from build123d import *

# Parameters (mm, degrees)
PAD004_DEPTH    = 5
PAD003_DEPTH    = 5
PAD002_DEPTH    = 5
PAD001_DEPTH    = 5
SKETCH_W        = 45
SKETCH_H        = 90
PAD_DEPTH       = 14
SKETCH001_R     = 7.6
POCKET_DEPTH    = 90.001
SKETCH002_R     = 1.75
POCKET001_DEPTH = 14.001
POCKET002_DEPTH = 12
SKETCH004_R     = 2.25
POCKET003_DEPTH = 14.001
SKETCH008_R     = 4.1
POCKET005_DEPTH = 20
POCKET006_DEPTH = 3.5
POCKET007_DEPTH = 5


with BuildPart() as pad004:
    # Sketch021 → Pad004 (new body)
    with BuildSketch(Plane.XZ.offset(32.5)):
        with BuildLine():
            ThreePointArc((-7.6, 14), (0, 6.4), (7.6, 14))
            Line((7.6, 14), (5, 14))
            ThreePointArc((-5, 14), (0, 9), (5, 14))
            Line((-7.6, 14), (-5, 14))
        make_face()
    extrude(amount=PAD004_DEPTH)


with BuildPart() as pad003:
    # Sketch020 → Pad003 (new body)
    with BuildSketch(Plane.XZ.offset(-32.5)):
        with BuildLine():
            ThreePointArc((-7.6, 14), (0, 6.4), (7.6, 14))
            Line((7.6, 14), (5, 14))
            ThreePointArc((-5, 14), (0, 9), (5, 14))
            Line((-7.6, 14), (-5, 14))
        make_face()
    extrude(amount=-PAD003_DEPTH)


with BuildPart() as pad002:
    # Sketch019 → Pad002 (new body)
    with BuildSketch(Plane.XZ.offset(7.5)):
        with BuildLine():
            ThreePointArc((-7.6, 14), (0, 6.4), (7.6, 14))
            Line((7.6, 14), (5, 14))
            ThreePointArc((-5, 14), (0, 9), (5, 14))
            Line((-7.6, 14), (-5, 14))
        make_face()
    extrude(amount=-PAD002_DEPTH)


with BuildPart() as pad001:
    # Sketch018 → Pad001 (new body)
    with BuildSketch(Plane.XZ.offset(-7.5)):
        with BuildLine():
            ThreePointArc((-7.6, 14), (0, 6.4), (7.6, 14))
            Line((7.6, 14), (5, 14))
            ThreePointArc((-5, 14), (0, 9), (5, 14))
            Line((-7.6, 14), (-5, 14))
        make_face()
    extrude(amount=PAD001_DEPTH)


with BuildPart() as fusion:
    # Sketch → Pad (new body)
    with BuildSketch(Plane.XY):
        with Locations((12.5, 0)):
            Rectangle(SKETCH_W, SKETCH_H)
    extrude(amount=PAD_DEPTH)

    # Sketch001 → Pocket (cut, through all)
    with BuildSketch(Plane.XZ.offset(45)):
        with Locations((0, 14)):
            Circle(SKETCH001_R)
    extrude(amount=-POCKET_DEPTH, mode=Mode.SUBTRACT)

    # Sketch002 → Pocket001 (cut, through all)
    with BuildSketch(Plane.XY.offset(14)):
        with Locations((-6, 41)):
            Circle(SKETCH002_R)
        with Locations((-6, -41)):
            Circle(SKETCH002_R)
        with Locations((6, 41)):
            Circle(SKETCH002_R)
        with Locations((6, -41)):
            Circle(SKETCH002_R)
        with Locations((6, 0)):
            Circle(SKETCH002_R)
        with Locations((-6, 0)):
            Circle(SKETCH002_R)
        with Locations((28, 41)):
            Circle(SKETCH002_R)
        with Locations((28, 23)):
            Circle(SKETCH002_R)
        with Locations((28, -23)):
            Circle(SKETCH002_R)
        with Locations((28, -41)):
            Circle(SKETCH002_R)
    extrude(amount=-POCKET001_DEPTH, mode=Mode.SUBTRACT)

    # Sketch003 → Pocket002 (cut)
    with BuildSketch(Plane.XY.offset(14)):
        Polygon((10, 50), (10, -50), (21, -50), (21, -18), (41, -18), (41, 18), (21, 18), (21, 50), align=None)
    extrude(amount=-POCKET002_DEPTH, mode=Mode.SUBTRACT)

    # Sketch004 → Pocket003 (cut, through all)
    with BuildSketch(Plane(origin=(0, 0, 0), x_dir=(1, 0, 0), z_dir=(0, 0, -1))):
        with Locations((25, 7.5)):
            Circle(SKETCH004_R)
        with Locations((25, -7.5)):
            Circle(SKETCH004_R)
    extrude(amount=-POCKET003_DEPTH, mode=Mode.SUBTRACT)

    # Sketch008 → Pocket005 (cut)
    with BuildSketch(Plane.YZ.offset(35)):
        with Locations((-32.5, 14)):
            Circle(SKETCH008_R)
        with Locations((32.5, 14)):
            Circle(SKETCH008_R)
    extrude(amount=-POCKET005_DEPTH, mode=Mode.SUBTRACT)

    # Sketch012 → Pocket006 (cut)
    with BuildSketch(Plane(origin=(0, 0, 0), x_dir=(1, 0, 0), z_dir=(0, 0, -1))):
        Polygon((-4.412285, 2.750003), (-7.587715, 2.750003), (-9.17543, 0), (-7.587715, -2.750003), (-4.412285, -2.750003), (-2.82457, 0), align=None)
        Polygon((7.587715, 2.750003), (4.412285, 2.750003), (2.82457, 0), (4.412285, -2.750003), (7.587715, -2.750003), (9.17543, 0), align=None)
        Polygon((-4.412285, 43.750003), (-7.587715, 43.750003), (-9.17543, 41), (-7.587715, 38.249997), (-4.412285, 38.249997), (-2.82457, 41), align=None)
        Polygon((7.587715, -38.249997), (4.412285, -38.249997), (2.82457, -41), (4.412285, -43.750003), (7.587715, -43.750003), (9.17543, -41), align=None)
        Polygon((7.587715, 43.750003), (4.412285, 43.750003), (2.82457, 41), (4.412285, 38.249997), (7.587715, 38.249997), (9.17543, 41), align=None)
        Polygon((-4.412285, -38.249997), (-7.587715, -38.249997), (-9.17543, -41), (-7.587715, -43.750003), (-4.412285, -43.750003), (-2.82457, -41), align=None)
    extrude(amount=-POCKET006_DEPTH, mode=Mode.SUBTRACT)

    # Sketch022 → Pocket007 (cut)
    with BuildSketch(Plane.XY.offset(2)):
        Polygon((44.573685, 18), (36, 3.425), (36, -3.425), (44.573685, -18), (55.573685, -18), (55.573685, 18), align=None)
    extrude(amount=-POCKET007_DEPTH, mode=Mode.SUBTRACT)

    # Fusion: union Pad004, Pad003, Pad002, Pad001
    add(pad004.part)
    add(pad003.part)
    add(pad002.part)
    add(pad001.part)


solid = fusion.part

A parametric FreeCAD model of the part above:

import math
import FreeCAD as App
import Part
import Sketcher
Q = App.Units.Quantity

doc = App.newDocument("Part")
body = doc.addObject("PartDesign::Body", "Body")

# Sketch on XZ plane
sketch1 = body.newObject("Sketcher::SketchObject", "Sketch")
sketch1.AttachmentSupport = (doc.getObject("XZ_Plane"), [""])
sketch1.MapMode = "FlatFace"
sketch1.AttachmentOffset = App.Placement(App.Vector(0, 0, 32.5), App.Rotation())
sketch1.addGeometry([
    Part.ArcOfCircle(Part.Circle(App.Vector(0, 14, 0), App.Vector(0, 0, 1), 7.6), math.radians(180), math.radians(360)),
    Part.LineSegment(App.Vector(7.6, 14, 0), App.Vector(5, 14, 0)),
    Part.ArcOfCircle(Part.Circle(App.Vector(0, 14, 0), App.Vector(0, 0, 1), 5), math.radians(180), math.radians(360)),
    Part.LineSegment(App.Vector(-5, 14, 0), App.Vector(-7.6, 14, 0)),
], False)
sketch1.addConstraint([
    Sketcher.Constraint("Coincident", 0, 2, 1, 1),
    Sketcher.Constraint("Coincident", 1, 2, 2, 2),
    Sketcher.Constraint("Coincident", 2, 1, 3, 1),
    Sketcher.Constraint("Coincident", 3, 2, 0, 1),
    Sketcher.Constraint("Horizontal", 1),
    Sketcher.Constraint("Horizontal", 3),
    Sketcher.Constraint("Coincident", 2, 3, 0, 3),
    Sketcher.Constraint("Symmetric", 1, 2, 2, 1, -2),
    Sketcher.Constraint("Horizontal", 2, 3, 0, 2),
    Sketcher.Constraint("Radius", 2, 5.0),
    Sketcher.Constraint("Radius", 0, 7.6),
    Sketcher.Constraint("DistanceY", -1, 1, 0, 3, 14.0),
])
pad1 = body.newObject("PartDesign::Pad", "Pad")
pad1.Profile = sketch1
pad1.Length = 5
body2 = doc.addObject("PartDesign::Body", "Body001")

# Sketch on XZ plane
sketch2 = body2.newObject("Sketcher::SketchObject", "Sketch001")
sketch2.AttachmentSupport = (doc.getObject("XZ_Plane001"), [""])
sketch2.MapMode = "FlatFace"
sketch2.AttachmentOffset = App.Placement(App.Vector(0, 0, -32.5), App.Rotation())
sketch2.addGeometry([
    Part.ArcOfCircle(Part.Circle(App.Vector(0, 14, 0), App.Vector(0, 0, 1), 7.6), math.radians(180), math.radians(360)),
    Part.LineSegment(App.Vector(7.6, 14, 0), App.Vector(5, 14, 0)),
    Part.ArcOfCircle(Part.Circle(App.Vector(0, 14, 0), App.Vector(0, 0, 1), 5), math.radians(180), math.radians(360)),
    Part.LineSegment(App.Vector(-5, 14, 0), App.Vector(-7.6, 14, 0)),
], False)
sketch2.addConstraint([
    Sketcher.Constraint("Coincident", 0, 2, 1, 1),
    Sketcher.Constraint("Coincident", 1, 2, 2, 2),
    Sketcher.Constraint("Coincident", 2, 1, 3, 1),
    Sketcher.Constraint("Coincident", 3, 2, 0, 1),
    Sketcher.Constraint("Horizontal", 1),
    Sketcher.Constraint("Horizontal", 3),
    Sketcher.Constraint("Coincident", 2, 3, 0, 3),
    Sketcher.Constraint("Symmetric", 1, 2, 2, 1, -2),
    Sketcher.Constraint("Horizontal", 2, 3, 0, 2),
    Sketcher.Constraint("Radius", 2, 5.0),
    Sketcher.Constraint("Radius", 0, 7.6),
    Sketcher.Constraint("DistanceY", -1, 1, 0, 3, 14.0),
])
pad2 = body2.newObject("PartDesign::Pad", "Pad001")
pad2.Profile = sketch2
pad2.Length = 5
pad2.Reversed = True
body3 = doc.addObject("PartDesign::Body", "Body002")

# Sketch on XZ plane
sketch3 = body3.newObject("Sketcher::SketchObject", "Sketch002")
sketch3.AttachmentSupport = (doc.getObject("XZ_Plane002"), [""])
sketch3.MapMode = "FlatFace"
sketch3.AttachmentOffset = App.Placement(App.Vector(0, 0, 7.5), App.Rotation())
sketch3.addGeometry([
    Part.ArcOfCircle(Part.Circle(App.Vector(0, 14, 0), App.Vector(0, 0, 1), 7.6), math.radians(180), math.radians(360)),
    Part.LineSegment(App.Vector(7.6, 14, 0), App.Vector(5, 14, 0)),
    Part.ArcOfCircle(Part.Circle(App.Vector(0, 14, 0), App.Vector(0, 0, 1), 5), math.radians(180), math.radians(360)),
    Part.LineSegment(App.Vector(-5, 14, 0), App.Vector(-7.6, 14, 0)),
], False)
sketch3.addConstraint([
    Sketcher.Constraint("Coincident", 0, 2, 1, 1),
    Sketcher.Constraint("Coincident", 1, 2, 2, 2),
    Sketcher.Constraint("Coincident", 2, 1, 3, 1),
    Sketcher.Constraint("Coincident", 3, 2, 0, 1),
    Sketcher.Constraint("Horizontal", 1),
    Sketcher.Constraint("Horizontal", 3),
    Sketcher.Constraint("Coincident", 2, 3, 0, 3),
    Sketcher.Constraint("Symmetric", 1, 2, 2, 1, -2),
    Sketcher.Constraint("Horizontal", 2, 3, 0, 2),
    Sketcher.Constraint("Radius", 2, 5.0),
    Sketcher.Constraint("Radius", 0, 7.6),
    Sketcher.Constraint("DistanceY", -1, 1, 0, 3, 14.0),
])
pad3 = body3.newObject("PartDesign::Pad", "Pad002")
pad3.Profile = sketch3
pad3.Length = 5
pad3.Reversed = True
body4 = doc.addObject("PartDesign::Body", "Body003")

# Sketch on XZ plane
sketch4 = body4.newObject("Sketcher::SketchObject", "Sketch003")
sketch4.AttachmentSupport = (doc.getObject("XZ_Plane003"), [""])
sketch4.MapMode = "FlatFace"
sketch4.AttachmentOffset = App.Placement(App.Vector(0, 0, -7.5), App.Rotation())
sketch4.addGeometry([
    Part.ArcOfCircle(Part.Circle(App.Vector(0, 14, 0), App.Vector(0, 0, 1), 7.6), math.radians(180), math.radians(360)),
    Part.LineSegment(App.Vector(7.6, 14, 0), App.Vector(5, 14, 0)),
    Part.ArcOfCircle(Part.Circle(App.Vector(0, 14, 0), App.Vector(0, 0, 1), 5), math.radians(180), math.radians(360)),
    Part.LineSegment(App.Vector(-5, 14, 0), App.Vector(-7.6, 14, 0)),
], False)
sketch4.addConstraint([
    Sketcher.Constraint("Coincident", 0, 2, 1, 1),
    Sketcher.Constraint("Coincident", 1, 2, 2, 2),
    Sketcher.Constraint("Coincident", 2, 1, 3, 1),
    Sketcher.Constraint("Coincident", 3, 2, 0, 1),
    Sketcher.Constraint("Horizontal", 1),
    Sketcher.Constraint("Horizontal", 3),
    Sketcher.Constraint("Coincident", 2, 3, 0, 3),
    Sketcher.Constraint("Symmetric", 1, 2, 2, 1, -2),
    Sketcher.Constraint("Horizontal", 2, 3, 0, 2),
    Sketcher.Constraint("Radius", 2, 5.0),
    Sketcher.Constraint("Radius", 0, 7.6),
    Sketcher.Constraint("DistanceY", -1, 1, 0, 3, 14.0),
])
pad4 = body4.newObject("PartDesign::Pad", "Pad003")
pad4.Profile = sketch4
pad4.Length = 5
body5 = doc.addObject("PartDesign::Body", "Body004")

# Sketch on XY plane
sketch5 = body5.newObject("Sketcher::SketchObject", "Sketch004")
sketch5.AttachmentSupport = (doc.getObject("XY_Plane004"), [""])
sketch5.MapMode = "FlatFace"
sketch5.addGeometry([
    Part.LineSegment(App.Vector(-10, 45, 0), App.Vector(-10, -45, 0)),
    Part.LineSegment(App.Vector(-10, -45, 0), App.Vector(35, -45, 0)),
    Part.LineSegment(App.Vector(35, -45, 0), App.Vector(35, 45, 0)),
    Part.LineSegment(App.Vector(35, 45, 0), App.Vector(-10, 45, 0)),
], False)
sketch5.addConstraint([
    Sketcher.Constraint("Coincident", 0, 2, 1, 1),
    Sketcher.Constraint("Coincident", 1, 2, 2, 1),
    Sketcher.Constraint("Coincident", 2, 2, 3, 1),
    Sketcher.Constraint("Coincident", 3, 2, 0, 1),
    Sketcher.Constraint("Vertical", 0),
    Sketcher.Constraint("Horizontal", 1),
    Sketcher.Constraint("Vertical", 2),
    Sketcher.Constraint("Horizontal", 3),
    Sketcher.Constraint("DistanceX", 1, 1, 1, 2, 45.0),
    Sketcher.Constraint("DistanceY", 0, 2, 0, 1, 90.0),
    Sketcher.Constraint("DistanceX", 0, 2, -1, 1, 10.0),
    Sketcher.Constraint("DistanceY", 0, 2, -1, 1, 45.0),
])
pad5 = body5.newObject("PartDesign::Pad", "Pad004")
pad5.Profile = sketch5
pad5.Length = 14

# Sketch on XZ plane
sketch6 = body5.newObject("Sketcher::SketchObject", "Sketch005")
sketch6.AttachmentSupport = (doc.getObject("XZ_Plane004"), [""])
sketch6.MapMode = "FlatFace"
sketch6.AttachmentOffset = App.Placement(App.Vector(0, 0, 45), App.Rotation())
sketch6.addGeometry(Part.Circle(App.Vector(0, 14, 0), App.Vector(0, 0, 1), 8), False)
sketch6.addConstraint([
    Sketcher.Constraint("PointOnObject", 0, 3, -2),
    Sketcher.Constraint("Diameter", 0, 15.2),
    Sketcher.Constraint("DistanceY", -1, 1, 0, 3, 14.0),
])
pocket1 = body5.newObject("PartDesign::Pocket", "Pocket")
pocket1.Profile = sketch6
pocket1.Type = "ThroughAll"

# Sketch on XY plane
sketch7 = body5.newObject("Sketcher::SketchObject", "Sketch006")
sketch7.AttachmentSupport = (doc.getObject("XY_Plane004"), [""])
sketch7.MapMode = "FlatFace"
sketch7.AttachmentOffset = App.Placement(App.Vector(0, 0, 14), App.Rotation())
sketch7.addGeometry([
    Part.Circle(App.Vector(-6, 41, 0), App.Vector(0, 0, 1), 1.8),  # 0
    Part.Circle(App.Vector(-6, -41, 0), App.Vector(0, 0, 1), 1.8),  # 1
    Part.Circle(App.Vector(6, 41, 0), App.Vector(0, 0, 1), 1.8),  # 2
    Part.Circle(App.Vector(6, -41, 0), App.Vector(0, 0, 1), 1.8),  # 3
    Part.Circle(App.Vector(6, 0, 0), App.Vector(0, 0, 1), 1.8),  # 4
    Part.Circle(App.Vector(-6, 0, 0), App.Vector(0, 0, 1), 1.8),  # 5
    Part.Circle(App.Vector(28, 41, 0), App.Vector(0, 0, 1), 1.8),  # 6
    Part.Circle(App.Vector(28, 23, 0), App.Vector(0, 0, 1), 1.8),  # 7
    Part.Circle(App.Vector(28, -23, 0), App.Vector(0, 0, 1), 1.8),  # 8
    Part.Circle(App.Vector(28, -41, 0), App.Vector(0, 0, 1), 1.8),  # 9
], False)
sketch7.addConstraint([
    Sketcher.Constraint("Equal", 0, 1),
    Sketcher.Constraint("Equal", 1, 2),
    Sketcher.Constraint("Equal", 2, 3),
    Sketcher.Constraint("Equal", 3, 4),
    Sketcher.Constraint("Equal", 4, 5),
    Sketcher.Constraint("Equal", 5, 6),
    Sketcher.Constraint("Equal", 6, 7),
    Sketcher.Constraint("Equal", 7, 8),
    Sketcher.Constraint("Equal", 8, 9),
    Sketcher.Constraint("Symmetric", 1, 3, 2, 3, -1, 1),
    Sketcher.Constraint("Symmetric", 0, 3, 3, 3, -1, 1),
    Sketcher.Constraint("Symmetric", 4, 3, 5, 3, -1, 1),
    Sketcher.Constraint("Symmetric", 0, 3, 2, 3, -2),
    Sketcher.Constraint("Symmetric", 7, 3, 8, 3, -1),
    Sketcher.Constraint("Symmetric", 6, 3, 9, 3, -1),
    Sketcher.Constraint("PointOnObject", 4, 3, -1),
    Sketcher.Constraint("Horizontal", 2, 3, 6, 3),
    Sketcher.Constraint("Vertical", 3, 3, 4, 3),
    Sketcher.Constraint("Vertical", 6, 3, 7, 3),
    Sketcher.Constraint("Diameter", 0, 3.5),
    Sketcher.Constraint("DistanceX", 0, 3, -1, 1, 6.0),
    Sketcher.Constraint("DistanceY", -1, 1, 0, 3, 41.0),
    Sketcher.Constraint("DistanceX", -1, 1, 6, 3, 28.0),
    Sketcher.Constraint("DistanceY", -1, 1, 7, 3, 23.0),
])
pocket2 = body5.newObject("PartDesign::Pocket", "Pocket001")
pocket2.Profile = sketch7
pocket2.Type = "ThroughAll"

# Sketch on XY plane
sketch8 = body5.newObject("Sketcher::SketchObject", "Sketch007")
sketch8.AttachmentSupport = (doc.getObject("XY_Plane004"), [""])
sketch8.MapMode = "FlatFace"
sketch8.AttachmentOffset = App.Placement(App.Vector(0, 0, 14), App.Rotation())
sketch8.addGeometry([
    Part.LineSegment(App.Vector(10, 50, 0), App.Vector(10, -50, 0)),  # 0
    Part.LineSegment(App.Vector(10, -50, 0), App.Vector(21, -50, 0)),  # 1
    Part.LineSegment(App.Vector(21, -50, 0), App.Vector(21, -18, 0)),  # 2
    Part.LineSegment(App.Vector(21, -18, 0), App.Vector(41, -18, 0)),  # 3
    Part.LineSegment(App.Vector(41, -18, 0), App.Vector(41, 18, 0)),  # 4
    Part.LineSegment(App.Vector(41, 18, 0), App.Vector(21, 18, 0)),  # 5
    Part.LineSegment(App.Vector(21, 18, 0), App.Vector(21, 50, 0)),  # 6
    Part.LineSegment(App.Vector(21, 50, 0), App.Vector(10, 50, 0)),  # 7
], False)
sketch8.addConstraint([
    Sketcher.Constraint("Coincident", 0, 2, 1, 1),
    Sketcher.Constraint("Coincident", 1, 2, 2, 1),
    Sketcher.Constraint("Coincident", 2, 2, 3, 1),
    Sketcher.Constraint("Coincident", 3, 2, 4, 1),
    Sketcher.Constraint("Coincident", 4, 2, 5, 1),
    Sketcher.Constraint("Coincident", 5, 2, 6, 1),
    Sketcher.Constraint("Coincident", 6, 2, 7, 1),
    Sketcher.Constraint("Coincident", 7, 2, 0, 1),
    Sketcher.Constraint("Vertical", 0),
    Sketcher.Constraint("Horizontal", 1),
    Sketcher.Constraint("Vertical", 2),
    Sketcher.Constraint("Horizontal", 3),
    Sketcher.Constraint("Vertical", 4),
    Sketcher.Constraint("Horizontal", 5),
    Sketcher.Constraint("Vertical", 6),
    Sketcher.Constraint("Horizontal", 7),
    Sketcher.Constraint("Symmetric", 2, 2, 5, 2, -1),
    Sketcher.Constraint("Equal", 2, 6),
    Sketcher.Constraint("DistanceX", 1, 1, 1, 2, 11.0),
    Sketcher.Constraint("DistanceX", 3, 1, 3, 2, 20.0),
    Sketcher.Constraint("DistanceY", 0, 2, 0, 1, 100.0),
    Sketcher.Constraint("DistanceY", 2, 1, 2, 2, 32.0),
    Sketcher.Constraint("DistanceX", -1, 1, 0, 2, 10.0),
])
pocket3 = body5.newObject("PartDesign::Pocket", "Pocket002")
pocket3.Profile = sketch8
pocket3.Length = 12

# Sketch on XY plane
sketch9 = body5.newObject("Sketcher::SketchObject", "Sketch008")
sketch9.AttachmentSupport = (doc.getObject("XY_Plane004"), [""])
sketch9.MapMode = "FlatFace"
sketch9.addGeometry([
    Part.Circle(App.Vector(25, -7.5, 0), App.Vector(0, 0, 1), 2.2),
    Part.Circle(App.Vector(25, 7.5, 0), App.Vector(0, 0, 1), 2.2),
], False)
sketch9.addConstraint([
    Sketcher.Constraint("Equal", 0, 1),
    Sketcher.Constraint("Symmetric", 0, 3, 1, 3, -1),
    Sketcher.Constraint("Diameter", 0, 4.5),
    Sketcher.Constraint("DistanceX", -1, 1, 0, 3, 25.0),
    Sketcher.Constraint("DistanceY", 0, 3, 1, 3, 15.0),
])
pocket4 = body5.newObject("PartDesign::Pocket", "Pocket003")
pocket4.Profile = sketch9
pocket4.Type = "ThroughAll"
pocket4.Reversed = True

# Sketch on YZ plane
sketch10 = body5.newObject("Sketcher::SketchObject", "Sketch009")
sketch10.AttachmentSupport = (doc.getObject("YZ_Plane004"), [""])
sketch10.MapMode = "FlatFace"
sketch10.AttachmentOffset = App.Placement(App.Vector(0, 0, 35), App.Rotation())
sketch10.addGeometry([
    Part.Circle(App.Vector(-32.5, 14, 0), App.Vector(0, 0, 1), 4.1),
    Part.Circle(App.Vector(32.5, 14, 0), App.Vector(0, 0, 1), 4.1),
], False)
sketch10.addConstraint([
    Sketcher.Constraint("Equal", 0, 1),
    Sketcher.Constraint("Symmetric", 0, 3, 1, 3, -2),
    Sketcher.Constraint("Diameter", 0, 8.2),
    Sketcher.Constraint("DistanceY", -1, 1, 0, 3, 14.0),
    Sketcher.Constraint("DistanceX", 0, 3, 1, 3, 65.0),
])
pocket5 = body5.newObject("PartDesign::Pocket", "Pocket004")
pocket5.Profile = sketch10
pocket5.Length = 20

# Sketch on XY plane
sketch11 = body5.newObject("Sketcher::SketchObject", "Sketch010")
sketch11.AttachmentSupport = (doc.getObject("XY_Plane004"), [""])
sketch11.MapMode = "FlatFace"
sketch11.addGeometry([
    Part.LineSegment(App.Vector(-4.4, -2.8, 0), App.Vector(-7.6, -2.8, 0)),  # 0
    Part.LineSegment(App.Vector(-7.6, -2.8, 0), App.Vector(-9.2, 0, 0)),  # 1
    Part.LineSegment(App.Vector(-9.2, 0, 0), App.Vector(-7.6, 2.8, 0)),  # 2
    Part.LineSegment(App.Vector(-7.6, 2.8, 0), App.Vector(-4.4, 2.8, 0)),  # 3
    Part.LineSegment(App.Vector(-4.4, 2.8, 0), App.Vector(-2.8, 0, 0)),  # 4
    Part.LineSegment(App.Vector(-2.8, 0, 0), App.Vector(-4.4, -2.8, 0)),  # 5
    Part.LineSegment(App.Vector(7.6, -2.8, 0), App.Vector(4.4, -2.8, 0)),  # 6
    Part.LineSegment(App.Vector(4.4, -2.8, 0), App.Vector(2.8, 0, 0)),  # 7
    Part.LineSegment(App.Vector(2.8, 0, 0), App.Vector(4.4, 2.8, 0)),  # 8
    Part.LineSegment(App.Vector(4.4, 2.8, 0), App.Vector(7.6, 2.8, 0)),  # 9
    Part.LineSegment(App.Vector(7.6, 2.8, 0), App.Vector(9.2, 0, 0)),  # 10
    Part.LineSegment(App.Vector(9.2, 0, 0), App.Vector(7.6, -2.8, 0)),  # 11
    Part.LineSegment(App.Vector(-4.4, -43.8, 0), App.Vector(-7.6, -43.8, 0)),  # 12
    Part.LineSegment(App.Vector(-7.6, -43.8, 0), App.Vector(-9.2, -41, 0)),  # 13
    Part.LineSegment(App.Vector(-9.2, -41, 0), App.Vector(-7.6, -38.2, 0)),  # 14
    Part.LineSegment(App.Vector(-7.6, -38.2, 0), App.Vector(-4.4, -38.2, 0)),  # 15
    Part.LineSegment(App.Vector(-4.4, -38.2, 0), App.Vector(-2.8, -41, 0)),  # 16
    Part.LineSegment(App.Vector(-2.8, -41, 0), App.Vector(-4.4, -43.8, 0)),  # 17
    Part.LineSegment(App.Vector(7.6, 38.2, 0), App.Vector(4.4, 38.2, 0)),  # 18
    Part.LineSegment(App.Vector(4.4, 38.2, 0), App.Vector(2.8, 41, 0)),  # 19
    Part.LineSegment(App.Vector(2.8, 41, 0), App.Vector(4.4, 43.8, 0)),  # 20
    Part.LineSegment(App.Vector(4.4, 43.8, 0), App.Vector(7.6, 43.8, 0)),  # 21
    Part.LineSegment(App.Vector(7.6, 43.8, 0), App.Vector(9.2, 41, 0)),  # 22
    Part.LineSegment(App.Vector(9.2, 41, 0), App.Vector(7.6, 38.2, 0)),  # 23
    Part.LineSegment(App.Vector(7.6, -43.8, 0), App.Vector(4.4, -43.8, 0)),  # 24
    Part.LineSegment(App.Vector(4.4, -43.8, 0), App.Vector(2.8, -41, 0)),  # 25
    Part.LineSegment(App.Vector(2.8, -41, 0), App.Vector(4.4, -38.2, 0)),  # 26
    Part.LineSegment(App.Vector(4.4, -38.2, 0), App.Vector(7.6, -38.2, 0)),  # 27
    Part.LineSegment(App.Vector(7.6, -38.2, 0), App.Vector(9.2, -41, 0)),  # 28
    Part.LineSegment(App.Vector(9.2, -41, 0), App.Vector(7.6, -43.8, 0)),  # 29
    Part.LineSegment(App.Vector(-4.4, 38.2, 0), App.Vector(-7.6, 38.2, 0)),  # 30
    Part.LineSegment(App.Vector(-7.6, 38.2, 0), App.Vector(-9.2, 41, 0)),  # 31
    Part.LineSegment(App.Vector(-9.2, 41, 0), App.Vector(-7.6, 43.8, 0)),  # 32
    Part.LineSegment(App.Vector(-7.6, 43.8, 0), App.Vector(-4.4, 43.8, 0)),  # 33
    Part.LineSegment(App.Vector(-4.4, 43.8, 0), App.Vector(-2.8, 41, 0)),  # 34
    Part.LineSegment(App.Vector(-2.8, 41, 0), App.Vector(-4.4, 38.2, 0)),  # 35
], False)
sketch11.addConstraint([
    Sketcher.Constraint("Coincident", 0, 2, 1, 1),
    Sketcher.Constraint("Coincident", 1, 2, 2, 1),
    Sketcher.Constraint("Coincident", 2, 2, 3, 1),
    Sketcher.Constraint("Coincident", 3, 2, 4, 1),
    Sketcher.Constraint("Coincident", 4, 2, 5, 1),
    Sketcher.Constraint("Coincident", 5, 2, 0, 1),
    Sketcher.Constraint("Coincident", 6, 2, 7, 1),
    Sketcher.Constraint("Coincident", 7, 2, 8, 1),
    Sketcher.Constraint("Coincident", 8, 2, 9, 1),
    Sketcher.Constraint("Coincident", 9, 2, 10, 1),
    Sketcher.Constraint("Coincident", 10, 2, 11, 1),
    Sketcher.Constraint("Coincident", 11, 2, 6, 1),
    Sketcher.Constraint("Coincident", 12, 2, 13, 1),
    Sketcher.Constraint("Coincident", 13, 2, 14, 1),
    Sketcher.Constraint("Coincident", 14, 2, 15, 1),
    Sketcher.Constraint("Coincident", 15, 2, 16, 1),
    Sketcher.Constraint("Coincident", 16, 2, 17, 1),
    Sketcher.Constraint("Coincident", 17, 2, 12, 1),
    Sketcher.Constraint("Coincident", 18, 2, 19, 1),
    Sketcher.Constraint("Coincident", 19, 2, 20, 1),
    Sketcher.Constraint("Coincident", 20, 2, 21, 1),
    Sketcher.Constraint("Coincident", 21, 2, 22, 1),
    Sketcher.Constraint("Coincident", 22, 2, 23, 1),
    Sketcher.Constraint("Coincident", 23, 2, 18, 1),
    Sketcher.Constraint("Coincident", 24, 2, 25, 1),
    Sketcher.Constraint("Coincident", 25, 2, 26, 1),
    Sketcher.Constraint("Coincident", 26, 2, 27, 1),
    Sketcher.Constraint("Coincident", 27, 2, 28, 1),
    Sketcher.Constraint("Coincident", 28, 2, 29, 1),
    Sketcher.Constraint("Coincident", 29, 2, 24, 1),
    Sketcher.Constraint("Coincident", 30, 2, 31, 1),
    Sketcher.Constraint("Coincident", 31, 2, 32, 1),
    Sketcher.Constraint("Coincident", 32, 2, 33, 1),
    Sketcher.Constraint("Coincident", 33, 2, 34, 1),
    Sketcher.Constraint("Coincident", 34, 2, 35, 1),
    Sketcher.Constraint("Coincident", 35, 2, 30, 1),
    Sketcher.Constraint("Horizontal", 0),
    Sketcher.Constraint("Horizontal", 3),
    Sketcher.Constraint("Horizontal", 6),
    Sketcher.Constraint("Horizontal", 9),
    Sketcher.Constraint("Horizontal", 12),
    Sketcher.Constraint("Horizontal", 15),
    Sketcher.Constraint("Horizontal", 18),
    Sketcher.Constraint("Horizontal", 21),
    Sketcher.Constraint("Horizontal", 24),
    Sketcher.Constraint("Horizontal", 27),
    Sketcher.Constraint("Horizontal", 30),
    Sketcher.Constraint("Horizontal", 33),
    Sketcher.Constraint("Symmetric", 3, 2, 6, 2, -1, 1),
    Sketcher.Constraint("Symmetric", 4, 2, 7, 2, -1, 1),
    Sketcher.Constraint("Symmetric", 5, 2, 8, 2, -1, 1),
    Sketcher.Constraint("Symmetric", 1, 2, 10, 2, -1, 1),
    Sketcher.Constraint("Symmetric", 15, 2, 18, 2, -1, 1),
    Sketcher.Constraint("Symmetric", 16, 2, 19, 2, -1, 1),
    Sketcher.Constraint("Symmetric", 17, 2, 20, 2, -1, 1),
    Sketcher.Constraint("Symmetric", 13, 2, 22, 2, -1, 1),
    Sketcher.Constraint("Symmetric", 27, 2, 30, 2, -1, 1),
    Sketcher.Constraint("Symmetric", 28, 2, 31, 2, -1, 1),
    Sketcher.Constraint("Symmetric", 29, 2, 32, 2, -1, 1),
    Sketcher.Constraint("Symmetric", 25, 2, 34, 2, -1, 1),
    Sketcher.Constraint("Symmetric", 5, 2, 6, 2, -2),
    Sketcher.Constraint("Symmetric", 17, 2, 24, 2, -2),
    Sketcher.Constraint("Symmetric", 16, 2, 25, 2, -2),
    Sketcher.Constraint("Symmetric", 15, 2, 26, 2, -2),
    Sketcher.Constraint("Symmetric", 13, 2, 28, 2, -2),
    Sketcher.Constraint("PointOnObject", 1, 2, -1),
    Sketcher.Constraint("PointOnObject", 4, 2, -1),
    Sketcher.Constraint("Parallel", 1, 4),
    Sketcher.Constraint("Parallel", 2, 5),
    Sketcher.Constraint("Parallel", 7, 10),
    Sketcher.Constraint("Parallel", 8, 11),
    Sketcher.Constraint("Parallel", 10, 13),
    Sketcher.Constraint("Parallel", 11, 14),
    Sketcher.Constraint("Parallel", 13, 16),
    Sketcher.Constraint("Parallel", 14, 17),
    Sketcher.Constraint("Parallel", 19, 22),
    Sketcher.Constraint("Parallel", 20, 23),
    Sketcher.Constraint("Parallel", 25, 28),
    Sketcher.Constraint("Parallel", 26, 29),
    Sketcher.Constraint("Parallel", 31, 34),
    Sketcher.Constraint("Parallel", 32, 35),
    Sketcher.Constraint("Horizontal", 13, 2, 16, 2),
    Sketcher.Constraint("Vertical", 2, 2, 12, 2),
    Sketcher.Constraint("Vertical", 1, 2, 13, 2),
    Sketcher.Constraint("Vertical", 12, 2, 14, 2),
    Sketcher.Constraint("Vertical", 5, 2, 15, 2),
    Sketcher.Constraint("Angle", 1, Q("120 deg")),
    Sketcher.Constraint("DistanceY", 13, 2, -1, 1, 41.0),
    Sketcher.Constraint("DistanceX", 0, 2, 6, 2, 12.0),
    Sketcher.Constraint("DistanceX", 0, 2, 0, 1, 3.17543),
    Sketcher.Constraint("Distance", 1, 3.17543),
])
pocket6 = body5.newObject("PartDesign::Pocket", "Pocket005")
pocket6.Profile = sketch11
pocket6.Length = 3.5
pocket6.Reversed = True

# Sketch on XY plane
sketch12 = body5.newObject("Sketcher::SketchObject", "Sketch011")
sketch12.AttachmentSupport = (doc.getObject("XY_Plane004"), [""])
sketch12.MapMode = "FlatFace"
sketch12.AttachmentOffset = App.Placement(App.Vector(0, 0, 2), App.Rotation())
sketch12.addGeometry([
    Part.LineSegment(App.Vector(45, 18, 0), App.Vector(36, 3, 0)),  # 0
    Part.LineSegment(App.Vector(36, 3, 0), App.Vector(36, -3, 0)),  # 1
    Part.LineSegment(App.Vector(36, -3, 0), App.Vector(45, -18, 0)),  # 2
    Part.LineSegment(App.Vector(45, -18, 0), App.Vector(56, -18, 0)),  # 3
    Part.LineSegment(App.Vector(56, -18, 0), App.Vector(56, 18, 0)),  # 4
    Part.LineSegment(App.Vector(56, 18, 0), App.Vector(45, 18, 0)),  # 5
], False)
sketch12.addConstraint([
    Sketcher.Constraint("Coincident", 0, 2, 1, 1),
    Sketcher.Constraint("Coincident", 1, 2, 2, 1),
    Sketcher.Constraint("Coincident", 2, 2, 3, 1),
    Sketcher.Constraint("Coincident", 3, 2, 4, 1),
    Sketcher.Constraint("Coincident", 4, 2, 5, 1),
    Sketcher.Constraint("Coincident", 5, 2, 0, 1),
    Sketcher.Constraint("Vertical", 1),
    Sketcher.Constraint("Horizontal", 3),
    Sketcher.Constraint("Vertical", 4),
    Sketcher.Constraint("Horizontal", 5),
    Sketcher.Constraint("Symmetric", 2, 2, 5, 2, -1),
    Sketcher.Constraint("Equal", 0, 2),
    Sketcher.Constraint("DistanceX", 3, 1, 3, 2, 11.0),
    Sketcher.Constraint("DistanceY", 4, 1, 4, 2, 36.0),
    Sketcher.Constraint("DistanceX", -1, 1, 0, 2, 36.0),
    Sketcher.Constraint("DistanceY", 1, 2, 1, 1, 6.85),
    Sketcher.Constraint("Distance", 0, 16.909722),
])
pocket7 = body5.newObject("PartDesign::Pocket", "Pocket006")
pocket7.Profile = sketch12
pocket7.Length = 5
doc.recompute()

boolean = body5.newObject("PartDesign::Boolean", "Boolean")
boolean.Type = "Fuse"
boolean.addObjects([body])
doc.recompute()

boolean2 = body5.newObject("PartDesign::Boolean", "Boolean001")
boolean2.Type = "Fuse"
boolean2.addObjects([body2])
doc.recompute()

boolean3 = body5.newObject("PartDesign::Boolean", "Boolean002")
boolean3.Type = "Fuse"
boolean3.addObjects([body3])
doc.recompute()

boolean4 = body5.newObject("PartDesign::Boolean", "Boolean003")
boolean4.Type = "Fuse"
boolean4.addObjects([body4])

doc.recompute()
